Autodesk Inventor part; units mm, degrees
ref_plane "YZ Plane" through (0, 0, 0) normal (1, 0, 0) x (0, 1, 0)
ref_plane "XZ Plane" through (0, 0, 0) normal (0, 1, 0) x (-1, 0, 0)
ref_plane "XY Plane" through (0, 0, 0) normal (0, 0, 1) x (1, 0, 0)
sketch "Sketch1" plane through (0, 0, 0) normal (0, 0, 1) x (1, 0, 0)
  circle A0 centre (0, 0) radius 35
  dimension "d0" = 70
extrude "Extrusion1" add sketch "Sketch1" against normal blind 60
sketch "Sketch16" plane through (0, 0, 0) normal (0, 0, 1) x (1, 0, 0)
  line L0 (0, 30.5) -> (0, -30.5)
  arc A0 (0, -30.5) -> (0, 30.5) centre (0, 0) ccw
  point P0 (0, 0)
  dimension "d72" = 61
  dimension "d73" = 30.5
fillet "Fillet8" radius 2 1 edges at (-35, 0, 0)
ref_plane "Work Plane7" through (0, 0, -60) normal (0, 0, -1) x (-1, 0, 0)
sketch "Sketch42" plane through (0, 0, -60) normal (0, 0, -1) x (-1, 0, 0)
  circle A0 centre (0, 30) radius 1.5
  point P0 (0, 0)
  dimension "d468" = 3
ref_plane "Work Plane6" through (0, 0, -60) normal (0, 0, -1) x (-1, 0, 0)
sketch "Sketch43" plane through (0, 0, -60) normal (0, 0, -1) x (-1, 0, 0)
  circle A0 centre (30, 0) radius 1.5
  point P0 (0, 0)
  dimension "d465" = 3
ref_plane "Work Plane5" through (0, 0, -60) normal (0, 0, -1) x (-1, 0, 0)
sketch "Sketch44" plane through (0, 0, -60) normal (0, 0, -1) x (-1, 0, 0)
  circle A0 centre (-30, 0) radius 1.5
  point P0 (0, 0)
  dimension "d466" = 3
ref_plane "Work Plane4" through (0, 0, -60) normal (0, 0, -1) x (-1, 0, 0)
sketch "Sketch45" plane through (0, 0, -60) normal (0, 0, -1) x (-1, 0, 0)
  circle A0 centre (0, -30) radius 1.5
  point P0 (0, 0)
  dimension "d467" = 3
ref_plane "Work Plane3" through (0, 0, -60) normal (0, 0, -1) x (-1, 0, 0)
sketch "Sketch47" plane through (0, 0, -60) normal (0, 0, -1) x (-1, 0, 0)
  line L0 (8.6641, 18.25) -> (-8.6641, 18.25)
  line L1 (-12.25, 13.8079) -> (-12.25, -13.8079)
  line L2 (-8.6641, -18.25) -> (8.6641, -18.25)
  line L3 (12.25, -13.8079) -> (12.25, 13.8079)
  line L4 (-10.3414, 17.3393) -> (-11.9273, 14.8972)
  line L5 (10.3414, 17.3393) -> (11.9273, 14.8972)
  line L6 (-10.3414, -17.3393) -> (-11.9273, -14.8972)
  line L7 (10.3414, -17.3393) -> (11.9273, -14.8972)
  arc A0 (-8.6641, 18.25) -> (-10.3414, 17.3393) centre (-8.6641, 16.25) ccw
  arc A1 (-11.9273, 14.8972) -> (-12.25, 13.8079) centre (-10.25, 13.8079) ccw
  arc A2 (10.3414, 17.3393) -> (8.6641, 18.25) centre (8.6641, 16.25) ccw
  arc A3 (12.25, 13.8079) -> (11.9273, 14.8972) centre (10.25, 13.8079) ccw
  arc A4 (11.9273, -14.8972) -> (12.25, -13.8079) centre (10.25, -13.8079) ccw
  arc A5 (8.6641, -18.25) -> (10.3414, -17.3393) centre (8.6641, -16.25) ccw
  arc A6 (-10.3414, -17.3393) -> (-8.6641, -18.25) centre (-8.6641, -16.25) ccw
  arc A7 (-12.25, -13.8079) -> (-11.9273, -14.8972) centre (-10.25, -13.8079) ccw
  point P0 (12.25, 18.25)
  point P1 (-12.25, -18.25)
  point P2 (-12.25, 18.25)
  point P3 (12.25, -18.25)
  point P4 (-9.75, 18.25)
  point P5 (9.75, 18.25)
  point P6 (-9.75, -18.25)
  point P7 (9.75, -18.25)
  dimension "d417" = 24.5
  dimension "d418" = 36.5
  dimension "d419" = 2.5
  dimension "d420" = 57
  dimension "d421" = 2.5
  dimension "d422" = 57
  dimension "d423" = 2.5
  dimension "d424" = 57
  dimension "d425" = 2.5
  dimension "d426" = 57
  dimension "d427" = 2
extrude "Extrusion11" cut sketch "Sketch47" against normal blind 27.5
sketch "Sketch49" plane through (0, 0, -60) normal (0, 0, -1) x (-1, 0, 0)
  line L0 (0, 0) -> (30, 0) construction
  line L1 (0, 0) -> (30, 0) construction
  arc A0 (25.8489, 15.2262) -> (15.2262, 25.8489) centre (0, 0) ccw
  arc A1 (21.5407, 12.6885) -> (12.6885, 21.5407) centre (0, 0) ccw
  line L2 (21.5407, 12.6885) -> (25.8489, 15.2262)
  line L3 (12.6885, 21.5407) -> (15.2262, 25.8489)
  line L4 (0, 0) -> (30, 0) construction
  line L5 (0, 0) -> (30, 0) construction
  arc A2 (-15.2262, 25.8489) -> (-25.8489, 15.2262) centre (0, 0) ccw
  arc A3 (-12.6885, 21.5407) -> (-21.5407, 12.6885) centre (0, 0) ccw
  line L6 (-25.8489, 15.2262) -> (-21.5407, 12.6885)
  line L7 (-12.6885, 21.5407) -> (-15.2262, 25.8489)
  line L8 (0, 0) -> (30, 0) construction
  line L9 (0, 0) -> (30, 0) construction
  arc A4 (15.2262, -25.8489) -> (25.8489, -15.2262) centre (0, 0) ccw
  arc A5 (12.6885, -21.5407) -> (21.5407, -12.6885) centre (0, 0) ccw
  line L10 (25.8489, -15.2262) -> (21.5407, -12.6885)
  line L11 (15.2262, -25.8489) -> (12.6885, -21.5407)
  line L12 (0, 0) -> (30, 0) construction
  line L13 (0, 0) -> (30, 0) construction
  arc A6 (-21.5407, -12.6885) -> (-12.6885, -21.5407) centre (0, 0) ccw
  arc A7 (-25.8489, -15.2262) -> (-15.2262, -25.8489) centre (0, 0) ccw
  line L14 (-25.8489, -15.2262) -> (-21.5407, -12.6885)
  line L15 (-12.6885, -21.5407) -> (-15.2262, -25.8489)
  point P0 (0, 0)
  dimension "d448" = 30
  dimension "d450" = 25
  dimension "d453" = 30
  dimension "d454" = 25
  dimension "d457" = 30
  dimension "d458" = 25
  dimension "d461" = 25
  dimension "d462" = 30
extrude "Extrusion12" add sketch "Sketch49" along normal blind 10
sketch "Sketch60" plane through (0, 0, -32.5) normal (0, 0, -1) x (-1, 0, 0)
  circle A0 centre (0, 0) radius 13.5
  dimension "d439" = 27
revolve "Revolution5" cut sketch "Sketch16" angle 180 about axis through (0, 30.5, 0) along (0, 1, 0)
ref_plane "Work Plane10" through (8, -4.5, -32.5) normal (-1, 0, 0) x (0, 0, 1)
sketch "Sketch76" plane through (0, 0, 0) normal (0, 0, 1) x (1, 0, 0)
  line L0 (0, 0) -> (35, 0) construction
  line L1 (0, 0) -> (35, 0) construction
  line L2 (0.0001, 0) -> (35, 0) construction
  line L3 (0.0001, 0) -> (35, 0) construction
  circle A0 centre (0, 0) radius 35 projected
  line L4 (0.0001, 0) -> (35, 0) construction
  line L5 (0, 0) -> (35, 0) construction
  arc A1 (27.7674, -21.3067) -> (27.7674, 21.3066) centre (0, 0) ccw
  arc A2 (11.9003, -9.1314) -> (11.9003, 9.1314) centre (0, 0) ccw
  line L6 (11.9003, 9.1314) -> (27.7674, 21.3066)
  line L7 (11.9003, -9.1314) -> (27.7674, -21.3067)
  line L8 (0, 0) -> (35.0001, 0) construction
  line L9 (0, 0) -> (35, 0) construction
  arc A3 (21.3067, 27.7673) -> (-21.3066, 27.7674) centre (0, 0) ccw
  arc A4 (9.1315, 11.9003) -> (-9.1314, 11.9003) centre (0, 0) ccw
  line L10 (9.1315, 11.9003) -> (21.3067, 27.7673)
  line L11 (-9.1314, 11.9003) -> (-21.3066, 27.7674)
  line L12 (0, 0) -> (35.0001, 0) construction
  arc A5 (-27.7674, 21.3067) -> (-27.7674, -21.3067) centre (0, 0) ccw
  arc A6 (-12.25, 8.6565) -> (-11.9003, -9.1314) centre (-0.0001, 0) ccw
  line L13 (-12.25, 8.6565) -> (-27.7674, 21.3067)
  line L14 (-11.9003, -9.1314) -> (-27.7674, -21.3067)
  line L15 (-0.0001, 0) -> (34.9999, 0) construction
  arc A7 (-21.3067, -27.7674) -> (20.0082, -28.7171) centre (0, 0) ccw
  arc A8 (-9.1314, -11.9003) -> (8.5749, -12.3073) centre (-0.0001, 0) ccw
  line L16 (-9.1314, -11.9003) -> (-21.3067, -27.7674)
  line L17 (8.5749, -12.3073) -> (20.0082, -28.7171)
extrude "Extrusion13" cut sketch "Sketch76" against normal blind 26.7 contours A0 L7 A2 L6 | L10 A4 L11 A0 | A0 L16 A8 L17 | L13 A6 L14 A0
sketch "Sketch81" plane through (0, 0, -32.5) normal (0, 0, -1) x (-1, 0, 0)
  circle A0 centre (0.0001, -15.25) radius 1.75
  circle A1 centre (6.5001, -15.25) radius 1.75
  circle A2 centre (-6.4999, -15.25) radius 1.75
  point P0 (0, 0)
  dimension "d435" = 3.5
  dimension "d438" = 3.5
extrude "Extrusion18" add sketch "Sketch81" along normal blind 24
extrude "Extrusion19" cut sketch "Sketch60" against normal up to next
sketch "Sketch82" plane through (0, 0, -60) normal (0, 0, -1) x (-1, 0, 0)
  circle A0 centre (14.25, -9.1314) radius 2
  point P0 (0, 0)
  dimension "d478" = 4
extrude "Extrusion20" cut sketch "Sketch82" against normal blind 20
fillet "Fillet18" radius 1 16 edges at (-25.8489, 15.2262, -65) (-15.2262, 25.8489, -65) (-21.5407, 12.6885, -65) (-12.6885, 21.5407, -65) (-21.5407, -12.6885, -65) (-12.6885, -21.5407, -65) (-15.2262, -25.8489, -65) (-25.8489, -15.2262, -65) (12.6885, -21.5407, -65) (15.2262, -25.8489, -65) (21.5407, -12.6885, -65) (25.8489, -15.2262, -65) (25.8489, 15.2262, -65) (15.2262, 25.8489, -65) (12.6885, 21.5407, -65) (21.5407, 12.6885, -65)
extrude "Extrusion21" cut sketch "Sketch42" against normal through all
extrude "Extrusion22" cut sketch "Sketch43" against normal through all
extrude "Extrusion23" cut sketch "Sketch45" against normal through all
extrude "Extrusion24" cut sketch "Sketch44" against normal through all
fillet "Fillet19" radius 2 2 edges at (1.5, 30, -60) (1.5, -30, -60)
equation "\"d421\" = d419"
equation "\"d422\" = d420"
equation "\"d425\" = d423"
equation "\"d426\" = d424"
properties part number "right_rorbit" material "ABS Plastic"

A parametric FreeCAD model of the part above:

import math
import FreeCAD as App
import Part
import Sketcher
Q = App.Units.Quantity


def edges_at(feature, points):
    """Names of the edges that pass closest to the given points."""
    edges = feature.Shape.Edges
    near = lambda p: min(range(len(edges)), key=lambda i: edges[i].distToShape(Part.Vertex(*p))[0])
    return sorted({f"Edge{near(p) + 1}" for p in points})

doc = App.newDocument("Part")
body = doc.addObject("PartDesign::Body", "Body")

sketch1 = body.newObject("Sketcher::SketchObject", "Sketch")
sketch1.AttachmentSupport = (doc.getObject("XY_Plane"), [""])
sketch1.MapMode = "FlatFace"
sketch1.addGeometry(Part.Circle(App.Vector(0, 0, 0), App.Vector(0, 0, 1), 35), False)
sketch1.addConstraint([
    Sketcher.Constraint("Coincident", 0, 3, -1, 1),
    Sketcher.Constraint("Diameter", 0, Q("70 mm")),
])
pad1 = body.newObject("PartDesign::Pad", "Pad")
pad1.Profile = sketch1
pad1.Length = 60
pad1.Reversed = True
doc.recompute()

fillet = body.newObject("PartDesign::Fillet", "Fillet")
fillet.Base = (pad1, edges_at(pad1, [(-35, 0, 0)]))
fillet.Radius = 2

sketch2 = body.newObject("Sketcher::SketchObject", "Sketch001")
sketch2.AttachmentSupport = (doc.getObject("XY_Plane"), [""])
sketch2.MapMode = "FlatFace"
sketch2.AttachmentOffset = App.Placement(App.Vector(0, 0, -60), App.Rotation())
sketch2.addGeometry([
    Part.ArcOfCircle(Part.Circle(App.Vector(-8.7, 16.2, 0), App.Vector(0, 0, 1), 2), math.radians(90), math.radians(147)),
    Part.LineSegment(App.Vector(-8.7, 18.2, 0), App.Vector(8.7, 18.2, 0)),
    Part.ArcOfCircle(Part.Circle(App.Vector(8.7, 16.2, 0), App.Vector(0, 0, 1), 2), math.radians(33), math.radians(90)),
    Part.LineSegment(App.Vector(10.3, 17.3, 0), App.Vector(11.9, 14.9, 0)),
    Part.ArcOfCircle(Part.Circle(App.Vector(10.2, 13.8, 0), App.Vector(0, 0, 1), 2), math.radians(0), math.radians(33)),
    Part.LineSegment(App.Vector(12.2, 13.8, 0), App.Vector(12.2, -13.8, 0)),
    Part.ArcOfCircle(Part.Circle(App.Vector(10.2, -13.8, 0), App.Vector(0, 0, 1), 2), math.radians(-33), math.radians(0)),
    Part.LineSegment(App.Vector(11.9, -14.9, 0), App.Vector(10.3, -17.3, 0)),
    Part.ArcOfCircle(Part.Circle(App.Vector(8.7, -16.2, 0), App.Vector(0, 0, 1), 2), math.radians(-90), math.radians(-33)),
    Part.LineSegment(App.Vector(8.7, -18.2, 0), App.Vector(-8.7, -18.2, 0)),
    Part.ArcOfCircle(Part.Circle(App.Vector(-8.7, -16.2, 0), App.Vector(0, 0, 1), 2), math.radians(-147), math.radians(-90)),
    Part.LineSegment(App.Vector(-10.3, -17.3, 0), App.Vector(-11.9, -14.9, 0)),
    Part.ArcOfCircle(Part.Circle(App.Vector(-10.2, -13.8, 0), App.Vector(0, 0, 1), 2), math.radians(180), math.radians(213)),
    Part.LineSegment(App.Vector(-12.2, -13.8, 0), App.Vector(-12.2, 13.8, 0)),
    Part.ArcOfCircle(Part.Circle(App.Vector(-10.2, 13.8, 0), App.Vector(0, 0, 1), 2), math.radians(147), math.radians(180)),
    Part.LineSegment(App.Vector(-11.9, 14.9, 0), App.Vector(-10.3, 17.3, 0)),
], False)
sketch2.addConstraint([
    Sketcher.Constraint("Tangent", 0, 1, 1, 1),
    Sketcher.Constraint("Tangent", 1, 2, 2, 2),
    Sketcher.Constraint("Tangent", 2, 1, 3, 1),
    Sketcher.Constraint("Tangent", 3, 2, 4, 2),
    Sketcher.Constraint("Tangent", 4, 1, 5, 1),
    Sketcher.Constraint("Tangent", 5, 2, 6, 2),
    Sketcher.Constraint("Tangent", 6, 1, 7, 1),
    Sketcher.Constraint("Tangent", 7, 2, 8, 2),
    Sketcher.Constraint("Tangent", 8, 1, 9, 1),
    Sketcher.Constraint("Tangent", 9, 2, 10, 2),
    Sketcher.Constraint("Tangent", 10, 1, 11, 1),
    Sketcher.Constraint("Tangent", 11, 2, 12, 2),
    Sketcher.Constraint("Tangent", 12, 1, 13, 1),
    Sketcher.Constraint("Tangent", 13, 2, 14, 2),
    Sketcher.Constraint("Tangent", 14, 1, 15, 1),
    Sketcher.Constraint("Tangent", 15, 2, 0, 2),
    Sketcher.Constraint("Horizontal", 1),
    Sketcher.Constraint("Vertical", 5),
    Sketcher.Constraint("Horizontal", 9),
    Sketcher.Constraint("Vertical", 13),
    Sketcher.Constraint("Equal", 0, 2),
    Sketcher.Constraint("Equal", 2, 4),
    Sketcher.Constraint("Equal", 4, 6),
    Sketcher.Constraint("Equal", 6, 8),
    Sketcher.Constraint("Equal", 8, 10),
    Sketcher.Constraint("Equal", 10, 12),
    Sketcher.Constraint("Equal", 12, 14),
    Sketcher.Constraint("Symmetric", 0, 3, 8, 3, -1, 1),
    Sketcher.Constraint("Symmetric", 4, 3, 12, 3, -1, 1),
    Sketcher.Constraint("Symmetric", 7, 2, 10, 1, -2),
    Sketcher.Constraint("Symmetric", 3, 2, 14, 1, -2),
    Sketcher.Constraint("Radius", 0, Q("2 mm")),
    Sketcher.Constraint("Angle", 3, Q("-57.0003 deg")),
    Sketcher.Constraint("DistanceY", 8, 3, 2, 3, Q("32.5 mm")),
    Sketcher.Constraint("DistanceX", 12, 3, 6, 3, Q("20.5 mm")),
    Sketcher.Constraint("DistanceX", 1, 1, 1, 2, Q("17.3282 mm")),
])
pocket1 = body.newObject("PartDesign::Pocket", "Pocket")
pocket1.Profile = sketch2
pocket1.Length = 27.5
pocket1.Reversed = True

sketch3 = body.newObject("Sketcher::SketchObject", "Sketch002")
sketch3.AttachmentSupport = (doc.getObject("XY_Plane"), [""])
sketch3.MapMode = "FlatFace"
sketch3.AttachmentOffset = App.Placement(App.Vector(0, 0, -60), App.Rotation())
sketch3.addGeometry([
    Part.LineSegment(App.Vector(-22, 13, 0), App.Vector(-26, 15, 0)),
    Part.ArcOfCircle(Part.Circle(App.Vector(0, 0, 0), App.Vector(0, 0, 1), 30), math.radians(121), math.radians(149)),
    Part.LineSegment(App.Vector(-15, 26, 0), App.Vector(-13, 22, 0)),
    Part.ArcOfCircle(Part.Circle(App.Vector(0, 0, 0), App.Vector(0, 0, 1), 25), math.radians(121), math.radians(149)),
    Part.LineSegment(App.Vector(13, 22, 0), App.Vector(15, 26, 0)),
    Part.ArcOfCircle(Part.Circle(App.Vector(0, 0, 0), App.Vector(0, 0, 1), 30), math.radians(31), math.radians(59)),
    Part.LineSegment(App.Vector(26, 15, 0), App.Vector(22, 13, 0)),
    Part.ArcOfCircle(Part.Circle(App.Vector(0, 0, 0), App.Vector(0, 0, 1), 25), math.radians(31), math.radians(59)),
    Part.LineSegment(App.Vector(-13, -22, 0), App.Vector(-15, -26, 0)),
    Part.ArcOfCircle(Part.Circle(App.Vector(0, 0, 0), App.Vector(0, 0, 1), 30), math.radians(-149), math.radians(-121)),
    Part.LineSegment(App.Vector(-26, -15, 0), App.Vector(-22, -13, 0)),
    Part.ArcOfCircle(Part.Circle(App.Vector(0, 0, 0), App.Vector(0, 0, 1), 25), math.radians(-149), math.radians(-121)),
    Part.ArcOfCircle(Part.Circle(App.Vector(0, 0, 0), App.Vector(0, 0, 1), 25), math.radians(-59), math.radians(-31)),
    Part.LineSegment(App.Vector(22, -13, 0), App.Vector(26, -15, 0)),
    Part.ArcOfCircle(Part.Circle(App.Vector(0, 0, 0), App.Vector(0, 0, 1), 30), math.radians(-59), math.radians(-31)),
    Part.LineSegment(App.Vector(15, -26, 0), App.Vector(13, -22, 0)),
], False)
sketch3.addConstraint([
    Sketcher.Constraint("Coincident", 0, 2, 1, 2),
    Sketcher.Constraint("Coincident", 1, 1, 2, 1),
    Sketcher.Constraint("Coincident", 2, 2, 3, 1),
    Sketcher.Constraint("Coincident", 3, 2, 0, 1),
    Sketcher.Constraint("Coincident", 4, 2, 5, 2),
    Sketcher.Constraint("Coincident", 5, 1, 6, 1),
    Sketcher.Constraint("Coincident", 6, 2, 7, 1),
    Sketcher.Constraint("Coincident", 7, 2, 4, 1),
    Sketcher.Constraint("Coincident", 8, 2, 9, 2),
    Sketcher.Constraint("Coincident", 9, 1, 10, 1),
    Sketcher.Constraint("Coincident", 10, 2, 11, 1),
    Sketcher.Constraint("Coincident", 11, 2, 8, 1),
    Sketcher.Constraint("Coincident", 12, 2, 13, 1),
    Sketcher.Constraint("Coincident", 13, 2, 14, 2),
    Sketcher.Constraint("Coincident", 14, 1, 15, 1),
    Sketcher.Constraint("Coincident", 15, 2, 12, 1),
    Sketcher.Constraint("Coincident", 1, 3, -1, 1),
    Sketcher.Constraint("Coincident", 3, 3, -1, 1),
    Sketcher.Constraint("Coincident", 5, 3, -1, 1),
    Sketcher.Constraint("Coincident", 7, 3, -1, 1),
    Sketcher.Constraint("Coincident", 9, 3, -1, 1),
    Sketcher.Constraint("Coincident", 11, 3, -1, 1),
    Sketcher.Constraint("Coincident", 12, 3, -1, 1),
    Sketcher.Constraint("Coincident", 14, 3, -1, 1),
    Sketcher.Constraint("Equal", 1, 5),
    Sketcher.Constraint("Equal", 3, 7),
    Sketcher.Constraint("Equal", 5, 9),
    Sketcher.Constraint("Equal", 7, 11),
    Sketcher.Constraint("Equal", 11, 12),
    Sketcher.Constraint("Equal", 9, 14),
    Sketcher.Constraint("Perpendicular", 0, 4),
    Sketcher.Constraint("Perpendicular", 2, 6),
    Sketcher.Constraint("Parallel", 4, 8),
    Sketcher.Constraint("Parallel", 6, 10),
    Sketcher.Constraint("Perpendicular", 8, 13),
    Sketcher.Constraint("Perpendicular", 10, 15),
    Sketcher.Constraint("Horizontal", 1, 1, 4, 2),
    Sketcher.Constraint("Horizontal", 0, 2, 5, 1),
    Sketcher.Constraint("Horizontal", 3, 2, 6, 2),
    Sketcher.Constraint("Horizontal", 10, 2, 12, 2),
    Sketcher.Constraint("Horizontal", 8, 2, 14, 1),
    Sketcher.Constraint("Vertical", 1, 1, 8, 2),
    Sketcher.Constraint("Vertical", 0, 2, 9, 1),
    Sketcher.Constraint("Radius", 1, Q("30 mm")),
    Sketcher.Constraint("Radius", 3, Q("25 mm")),
    Sketcher.Constraint("Angle", 0, Q("149.5002 deg")),
    Sketcher.Constraint("DistanceX", 0, 2, -1, 1, Q("25.849 mm")),
    Sketcher.Constraint("DistanceY", -1, 1, 1, 1, Q("25.849 mm")),
])
pad2 = body.newObject("PartDesign::Pad", "Pad001")
pad2.Profile = sketch3
pad2.Length = 10
pad2.Reversed = True

sketch4 = body.newObject("Sketcher::SketchObject", "Sketch003")
sketch4.AttachmentSupport = (doc.getObject("XY_Plane"), [""])
sketch4.MapMode = "FlatFace"
sketch4.addGeometry([
    Part.ArcOfCircle(Part.Circle(App.Vector(0, 0, 0), App.Vector(0, 0, 1), 30), math.radians(-90), math.radians(90)),
    Part.LineSegment(App.Vector(0, 30, 0), App.Vector(0, -30, 0)),
], False)
sketch4.addConstraint([
    Sketcher.Constraint("Coincident", 0, 1, 1, 2),
    Sketcher.Constraint("Coincident", 1, 1, 0, 2),
    Sketcher.Constraint("Vertical", 1),
    Sketcher.Constraint("Coincident", 0, 3, -1, 1),
    Sketcher.Constraint("PointOnObject", 0, 1, -2),
    Sketcher.Constraint("Radius", 0, Q("30.5 mm")),
])
groove = body.newObject("PartDesign::Groove", "Groove")
groove.Profile = sketch4
groove.ReferenceAxis = (sketch4, ["V_Axis"])
groove.Angle = 180

sketch5 = body.newObject("Sketcher::SketchObject", "Sketch004")
sketch5.AttachmentSupport = (doc.getObject("XY_Plane"), [""])
sketch5.MapMode = "FlatFace"
sketch5.addGeometry([
    Part.ArcOfCircle(Part.Circle(App.Vector(0, 0, 0), App.Vector(0, 0, 1), 35), math.radians(-38), math.radians(37)),
    Part.LineSegment(App.Vector(28, 21, 0), App.Vector(12, 9, 0)),
    Part.ArcOfCircle(Part.Circle(App.Vector(0, 0, 0), App.Vector(0, 0, 1), 15), math.radians(-37), math.radians(37)),
    Part.LineSegment(App.Vector(12, -9, 0), App.Vector(28, -21, 0)),
    Part.LineSegment(App.Vector(9, 12, 0), App.Vector(21, 28, 0)),
    Part.ArcOfCircle(Part.Circle(App.Vector(0, 0, 0), App.Vector(0, 0, 1), 35), math.radians(52), math.radians(127)),
    Part.LineSegment(App.Vector(-21, 28, 0), App.Vector(-9, 12, 0)),
    Part.ArcOfCircle(Part.Circle(App.Vector(0, 0, 0), App.Vector(0, 0, 1), 15), math.radians(52), math.radians(127)),
    Part.ArcOfCircle(Part.Circle(App.Vector(0, 0, 0), App.Vector(0, 0, 1), 35), math.radians(-128), math.radians(-55)),
    Part.LineSegment(App.Vector(20, -29, 0), App.Vector(9, -12, 0)),
    Part.ArcOfCircle(Part.Circle(App.Vector(0, 0, 0), App.Vector(0, 0, 1), 15), math.radians(-127), math.radians(-55)),
    Part.LineSegment(App.Vector(-9, -12, 0), App.Vector(-21, -28, 0)),
    Part.LineSegment(App.Vector(-12, 9, 0), App.Vector(-28, 21, 0)),
    Part.ArcOfCircle(Part.Circle(App.Vector(0, 0, 0), App.Vector(0, 0, 1), 35), math.radians(142), math.radians(218)),
    Part.LineSegment(App.Vector(-28, -21, 0), App.Vector(-12, -9, 0)),
    Part.ArcOfCircle(Part.Circle(App.Vector(0, 0, 0), App.Vector(0, 0, 1), 15), math.radians(145), math.radians(217)),
], False)
sketch5.addConstraint([
    Sketcher.Constraint("Coincident", 0, 2, 1, 1),
    Sketcher.Constraint("Coincident", 1, 2, 2, 2),
    Sketcher.Constraint("Coincident", 2, 1, 3, 1),
    Sketcher.Constraint("Coincident", 3, 2, 0, 1),
    Sketcher.Constraint("Coincident", 4, 2, 5, 1),
    Sketcher.Constraint("Coincident", 5, 2, 6, 1),
    Sketcher.Constraint("Coincident", 6, 2, 7, 2),
    Sketcher.Constraint("Coincident", 7, 1, 4, 1),
    Sketcher.Constraint("Coincident", 8, 2, 9, 1),
    Sketcher.Constraint("Coincident", 9, 2, 10, 2),
    Sketcher.Constraint("Coincident", 10, 1, 11, 1),
    Sketcher.Constraint("Coincident", 11, 2, 8, 1),
    Sketcher.Constraint("Coincident", 12, 2, 13, 1),
    Sketcher.Constraint("Coincident", 13, 2, 14, 1),
    Sketcher.Constraint("Coincident", 14, 2, 15, 2),
    Sketcher.Constraint("Coincident", 15, 1, 12, 1),
    Sketcher.Constraint("Coincident", 0, 3, -1, 1),
    Sketcher.Constraint("Coincident", 2, 3, -1, 1),
    Sketcher.Constraint("Coincident", 5, 3, -1, 1),
    Sketcher.Constraint("Coincident", 7, 3, -1, 1),
    Sketcher.Constraint("Coincident", 8, 3, -1, 1),
    Sketcher.Constraint("Coincident", 10, 3, -1, 1),
    Sketcher.Constraint("Coincident", 13, 3, -1, 1),
    Sketcher.Constraint("Coincident", 15, 3, -1, 1),
    Sketcher.Constraint("Equal", 0, 5),
    Sketcher.Constraint("Equal", 2, 7),
    Sketcher.Constraint("Equal", 5, 8),
    Sketcher.Constraint("Equal", 7, 10),
    Sketcher.Constraint("Equal", 8, 13),
    Sketcher.Constraint("Equal", 10, 15),
    Sketcher.Constraint("Perpendicular", 3, 4),
    Sketcher.Constraint("Perpendicular", 1, 6),
    Sketcher.Constraint("Parallel", 4, 11),
    Sketcher.Constraint("Perpendicular", 6, 14),
    Sketcher.Constraint("Horizontal", 4, 2, 5, 2),
    Sketcher.Constraint("Horizontal", 6, 2, 7, 1),
    Sketcher.Constraint("Horizontal", 0, 2, 12, 2),
    Sketcher.Constraint("Horizontal", 3, 2, 13, 2),
    Sketcher.Constraint("Vertical", 1, 2, 2, 1),
    Sketcher.Constraint("Vertical", 6, 2, 10, 1),
    Sketcher.Constraint("Radius", 0, Q("35 mm")),
    Sketcher.Constraint("Radius", 2, Q("15 mm")),
    Sketcher.Constraint("Angle", 1, Q("-142.5001 deg")),
    Sketcher.Constraint("DistanceX", 15, 1, -1, 1, Q("12.25 mm")),
    Sketcher.Constraint("DistanceY", 11, 2, 9, 2, Q("15.46 mm")),
    Sketcher.Constraint("DistanceY", 8, 2, -1, 1, Q("28.717 mm")),
    Sketcher.Constraint("DistanceX", -1, 1, 9, 2, Q("8.575 mm")),
    Sketcher.Constraint("DistanceY", 3, 2, 1, 2, Q("30.438 mm")),
])
pocket2 = body.newObject("PartDesign::Pocket", "Pocket001")
pocket2.Profile = sketch5
pocket2.Length = 26.7

sketch6 = body.newObject("Sketcher::SketchObject", "Sketch005")
sketch6.AttachmentSupport = (doc.getObject("XY_Plane"), [""])
sketch6.MapMode = "FlatFace"
sketch6.AttachmentOffset = App.Placement(App.Vector(0, 0, -32.5), App.Rotation())
sketch6.addGeometry([
    Part.Circle(App.Vector(0, -15.2, 0), App.Vector(0, 0, 1), 1.8),
    Part.Circle(App.Vector(-6.5, -15.2, 0), App.Vector(0, 0, 1), 1.8),
    Part.Circle(App.Vector(6.5, -15.2, 0), App.Vector(0, 0, 1), 1.8),
], False)
sketch6.addConstraint([
    Sketcher.Constraint("Equal", 0, 1),
    Sketcher.Constraint("Equal", 1, 2),
    Sketcher.Constraint("Symmetric", 1, 3, 2, 3, -2),
    Sketcher.Constraint("PointOnObject", 0, 3, -2),
    Sketcher.Constraint("Horizontal", 0, 3, 1, 3),
    Sketcher.Constraint("Diameter", 0, Q("3.5 mm")),
    Sketcher.Constraint("DistanceX", 1, 3, 2, 3, Q("13 mm")),
    Sketcher.Constraint("DistanceY", 0, 3, -1, 1, Q("15.25 mm")),
])
pad3 = body.newObject("PartDesign::Pad", "Pad002")
pad3.Profile = sketch6
pad3.Length = 24
pad3.Reversed = True

sketch7 = body.newObject("Sketcher::SketchObject", "Sketch006")
sketch7.AttachmentSupport = (doc.getObject("XY_Plane"), [""])
sketch7.MapMode = "FlatFace"
sketch7.AttachmentOffset = App.Placement(App.Vector(0, 0, -32.5), App.Rotation())
sketch7.addGeometry(Part.Circle(App.Vector(0, 0, 0), App.Vector(0, 0, 1), 14), False)
sketch7.addConstraint([
    Sketcher.Constraint("Coincident", 0, 3, -1, 1),
    Sketcher.Constraint("Diameter", 0, Q("27 mm")),
])
pocket3 = body.newObject("PartDesign::Pocket", "Pocket002")
pocket3.Profile = sketch7
pocket3.Type = "UpToFirst"
pocket3.Reversed = True

sketch8 = body.newObject("Sketcher::SketchObject", "Sketch007")
sketch8.AttachmentSupport = (doc.getObject("XY_Plane"), [""])
sketch8.MapMode = "FlatFace"
sketch8.AttachmentOffset = App.Placement(App.Vector(0, 0, -60), App.Rotation())
sketch8.addGeometry(Part.Circle(App.Vector(-14.2, -9.1, 0), App.Vector(0, 0, 1), 2), False)
sketch8.addConstraint([
    Sketcher.Constraint("Diameter", 0, Q("4 mm")),
    Sketcher.Constraint("DistanceX", 0, 3, -1, 1, Q("14.25 mm")),
    Sketcher.Constraint("DistanceY", 0, 3, -1, 1, Q("9.1314 mm")),
])
pocket4 = body.newObject("PartDesign::Pocket", "Pocket003")
pocket4.Profile = sketch8
pocket4.Length = 20
pocket4.Reversed = True
doc.recompute()

fillet2 = body.newObject("PartDesign::Fillet", "Fillet001")
fillet2.Base = (pocket4, edges_at(pocket4, [
    (-25.849, 15.226, -65),
    (-15.226, 25.849, -65),
    (-21.541, 12.688, -65),
    (-12.688, 21.541, -65),
    (-21.541, -12.688, -65),
    (-12.688, -21.541, -65),
    (-15.226, -25.849, -65),
    (-25.849, -15.226, -65),
    (12.688, -21.541, -65),
    (15.226, -25.849, -65),
    (21.541, -12.688, -65),
    (25.849, -15.226, -65),
    (25.849, 15.226, -65),
    (15.226, 25.849, -65),
    (12.688, 21.541, -65),
    (21.541, 12.688, -65),
]))
fillet2.Radius = 1

sketch9 = body.newObject("Sketcher::SketchObject", "Sketch008")
sketch9.AttachmentSupport = (doc.getObject("XY_Plane"), [""])
sketch9.MapMode = "FlatFace"
sketch9.AttachmentOffset = App.Placement(App.Vector(0, 0, -60), App.Rotation())
sketch9.addGeometry(Part.Circle(App.Vector(0, 30, 0), App.Vector(0, 0, 1), 1.5), False)
sketch9.addConstraint([
    Sketcher.Constraint("PointOnObject", 0, 3, -2),
    Sketcher.Constraint("Diameter", 0, Q("3 mm")),
    Sketcher.Constraint("DistanceY", -1, 1, 0, 3, Q("30 mm")),
])
pocket5 = body.newObject("PartDesign::Pocket", "Pocket004")
pocket5.Profile = sketch9
pocket5.Type = "ThroughAll"
pocket5.Reversed = True

sketch10 = body.newObject("Sketcher::SketchObject", "Sketch009")
sketch10.AttachmentSupport = (doc.getObject("XY_Plane"), [""])
sketch10.MapMode = "FlatFace"
sketch10.AttachmentOffset = App.Placement(App.Vector(0, 0, -60), App.Rotation())
sketch10.addGeometry(Part.Circle(App.Vector(-30, 0, 0), App.Vector(0, 0, 1), 1.5), False)
sketch10.addConstraint([
    Sketcher.Constraint("PointOnObject", 0, 3, -1),
    Sketcher.Constraint("Diameter", 0, Q("3 mm")),
    Sketcher.Constraint("DistanceX", 0, 3, -1, 1, Q("30 mm")),
])
pocket6 = body.newObject("PartDesign::Pocket", "Pocket005")
pocket6.Profile = sketch10
pocket6.Type = "ThroughAll"
pocket6.Reversed = True

sketch11 = body.newObject("Sketcher::SketchObject", "Sketch010")
sketch11.AttachmentSupport = (doc.getObject("XY_Plane"), [""])
sketch11.MapMode = "FlatFace"
sketch11.AttachmentOffset = App.Placement(App.Vector(0, 0, -60), App.Rotation())
sketch11.addGeometry(Part.Circle(App.Vector(0, -30, 0), App.Vector(0, 0, 1), 1.5), False)
sketch11.addConstraint([
    Sketcher.Constraint("PointOnObject", 0, 3, -2),
    Sketcher.Constraint("Diameter", 0, Q("3 mm")),
    Sketcher.Constraint("DistanceY", 0, 3, -1, 1, Q("30 mm")),
])
pocket7 = body.newObject("PartDesign::Pocket", "Pocket006")
pocket7.Profile = sketch11
pocket7.Type = "ThroughAll"
pocket7.Reversed = True

sketch12 = body.newObject("Sketcher::SketchObject", "Sketch011")
sketch12.AttachmentSupport = (doc.getObject("XY_Plane"), [""])
sketch12.MapMode = "FlatFace"
sketch12.AttachmentOffset = App.Placement(App.Vector(0, 0, -60), App.Rotation())
sketch12.addGeometry(Part.Circle(App.Vector(30, 0, 0), App.Vector(0, 0, 1), 1.5), False)
sketch12.addConstraint([
    Sketcher.Constraint("PointOnObject", 0, 3, -1),
    Sketcher.Constraint("Diameter", 0, Q("3 mm")),
    Sketcher.Constraint("DistanceX", -1, 1, 0, 3, Q("30 mm")),
])
pocket8 = body.newObject("PartDesign::Pocket", "Pocket007")
pocket8.Profile = sketch12
pocket8.Type = "ThroughAll"
pocket8.Reversed = True
doc.recompute()

fillet3 = body.newObject("PartDesign::Fillet", "Fillet002")
fillet3.Base = (pocket8, edges_at(pocket8, [(1.5, 30, -60), (1.5, -30, -60)]))
fillet3.Radius = 2

doc.recompute()
